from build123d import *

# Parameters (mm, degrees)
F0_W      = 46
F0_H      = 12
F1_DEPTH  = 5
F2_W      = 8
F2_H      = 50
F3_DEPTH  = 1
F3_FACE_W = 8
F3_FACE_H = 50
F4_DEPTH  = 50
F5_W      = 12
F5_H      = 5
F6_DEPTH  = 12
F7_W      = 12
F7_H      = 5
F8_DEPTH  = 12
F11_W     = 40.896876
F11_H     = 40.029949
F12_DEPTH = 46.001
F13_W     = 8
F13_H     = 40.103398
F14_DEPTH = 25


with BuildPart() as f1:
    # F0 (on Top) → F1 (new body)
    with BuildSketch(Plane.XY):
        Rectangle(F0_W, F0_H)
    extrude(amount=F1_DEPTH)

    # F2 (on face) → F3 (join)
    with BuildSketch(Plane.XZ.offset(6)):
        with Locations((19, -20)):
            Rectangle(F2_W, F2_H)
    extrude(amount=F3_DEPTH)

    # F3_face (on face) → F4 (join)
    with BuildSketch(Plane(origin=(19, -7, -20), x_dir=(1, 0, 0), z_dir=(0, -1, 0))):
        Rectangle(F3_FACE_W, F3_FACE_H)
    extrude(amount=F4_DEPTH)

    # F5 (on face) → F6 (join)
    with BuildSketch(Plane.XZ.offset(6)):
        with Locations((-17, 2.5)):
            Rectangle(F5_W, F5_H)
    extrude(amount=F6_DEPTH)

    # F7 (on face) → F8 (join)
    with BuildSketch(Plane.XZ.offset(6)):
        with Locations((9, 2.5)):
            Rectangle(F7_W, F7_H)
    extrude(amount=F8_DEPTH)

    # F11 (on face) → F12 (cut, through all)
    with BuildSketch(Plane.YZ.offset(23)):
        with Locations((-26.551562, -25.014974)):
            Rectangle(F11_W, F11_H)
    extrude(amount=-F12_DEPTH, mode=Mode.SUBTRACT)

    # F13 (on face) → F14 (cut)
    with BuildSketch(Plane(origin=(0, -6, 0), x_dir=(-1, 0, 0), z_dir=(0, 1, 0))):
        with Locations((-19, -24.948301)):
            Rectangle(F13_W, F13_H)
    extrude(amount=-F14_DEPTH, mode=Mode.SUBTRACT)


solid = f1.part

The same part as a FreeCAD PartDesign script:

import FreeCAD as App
import Part
import Sketcher

V = App.Vector
Q = App.Units.Quantity

doc = App.newDocument("Part")
body = doc.addObject("PartDesign::Body", "Body")

# Sketch on XY plane
sketch1 = body.newObject("Sketcher::SketchObject", "Sketch")
sketch1.AttachmentSupport = (doc.getObject("XY_Plane"), [""])
sketch1.MapMode = "FlatFace"
sketch1.addGeometry([
    Part.LineSegment(V(-23, 6, 0), V(-23, -6, 0)),
    Part.LineSegment(V(-23, -6, 0), V(23, -6, 0)),
    Part.LineSegment(V(23, -6, 0), V(23, 6, 0)),
    Part.LineSegment(V(23, 6, 0), V(-23, 6, 0)),
], False)
sketch1.addConstraint([
    Sketcher.Constraint("Coincident", 0, 2, 1, 1),
    Sketcher.Constraint("Coincident", 1, 2, 2, 1),
    Sketcher.Constraint("Coincident", 2, 2, 3, 1),
    Sketcher.Constraint("Coincident", 3, 2, 0, 1),
    Sketcher.Constraint("Vertical", 0),
    Sketcher.Constraint("Horizontal", 1),
    Sketcher.Constraint("Vertical", 2),
    Sketcher.Constraint("Horizontal", 3),
    Sketcher.Constraint("Symmetric", 0, 2, 2, 2, -1, 1),
    Sketcher.Constraint("DistanceX", 1, 1, 1, 2, Q("46 mm")),
    Sketcher.Constraint("DistanceY", 0, 2, 0, 1, Q("12 mm")),
])
pad1 = body.newObject("PartDesign::Pad", "Pad")
pad1.Profile = sketch1
pad1.Length = 5

# Sketch on XZ plane
sketch2 = body.newObject("Sketcher::SketchObject", "Sketch001")
sketch2.AttachmentSupport = (doc.getObject("XZ_Plane"), [""])
sketch2.MapMode = "FlatFace"
sketch2.AttachmentOffset = App.Placement(V(0, 0, 6), App.Rotation())
sketch2.addGeometry([
    Part.LineSegment(V(15, 5, 0), V(15, -45, 0)),
    Part.LineSegment(V(15, -45, 0), V(23, -45, 0)),
    Part.LineSegment(V(23, -45, 0), V(23, 5, 0)),
    Part.LineSegment(V(23, 5, 0), V(15, 5, 0)),
], False)
sketch2.addConstraint([
    Sketcher.Constraint("Coincident", 0, 2, 1, 1),
    Sketcher.Constraint("Coincident", 1, 2, 2, 1),
    Sketcher.Constraint("Coincident", 2, 2, 3, 1),
    Sketcher.Constraint("Coincident", 3, 2, 0, 1),
    Sketcher.Constraint("Vertical", 0),
    Sketcher.Constraint("Horizontal", 1),
    Sketcher.Constraint("Vertical", 2),
    Sketcher.Constraint("Horizontal", 3),
    Sketcher.Constraint("DistanceX", 1, 1, 1, 2, Q("8 mm")),
    Sketcher.Constraint("DistanceY", 0, 2, 0, 1, Q("50 mm")),
    Sketcher.Constraint("DistanceX", -1, 1, 0, 2, Q("15 mm")),
    Sketcher.Constraint("DistanceY", 0, 2, -1, 1, Q("45 mm")),
])
pad2 = body.newObject("PartDesign::Pad", "Pad001")
pad2.Profile = sketch2
pad2.Length = 1

# Sketch on XZ plane
sketch3 = body.newObject("Sketcher::SketchObject", "Sketch002")
sketch3.AttachmentSupport = (doc.getObject("XZ_Plane"), [""])
sketch3.MapMode = "FlatFace"
sketch3.AttachmentOffset = App.Placement(V(0, 0, 7), App.Rotation())
sketch3.addGeometry([
    Part.LineSegment(V(15, 5, 0), V(15, -45, 0)),
    Part.LineSegment(V(15, -45, 0), V(23, -45, 0)),
    Part.LineSegment(V(23, -45, 0), V(23, 5, 0)),
    Part.LineSegment(V(23, 5, 0), V(15, 5, 0)),
], False)
sketch3.addConstraint([
    Sketcher.Constraint("Coincident", 0, 2, 1, 1),
    Sketcher.Constraint("Coincident", 1, 2, 2, 1),
    Sketcher.Constraint("Coincident", 2, 2, 3, 1),
    Sketcher.Constraint("Coincident", 3, 2, 0, 1),
    Sketcher.Constraint("Vertical", 0),
    Sketcher.Constraint("Horizontal", 1),
    Sketcher.Constraint("Vertical", 2),
    Sketcher.Constraint("Horizontal", 3),
    Sketcher.Constraint("DistanceX", 1, 1, 1, 2, Q("8 mm")),
    Sketcher.Constraint("DistanceY", 0, 2, 0, 1, Q("50 mm")),
    Sketcher.Constraint("DistanceX", -1, 1, 0, 2, Q("15 mm")),
    Sketcher.Constraint("DistanceY", 0, 2, -1, 1, Q("45 mm")),
])
pad3 = body.newObject("PartDesign::Pad", "Pad002")
pad3.Profile = sketch3
pad3.Length = 50

# Sketch on XZ plane
sketch4 = body.newObject("Sketcher::SketchObject", "Sketch003")
sketch4.AttachmentSupport = (doc.getObject("XZ_Plane"), [""])
sketch4.MapMode = "FlatFace"
sketch4.AttachmentOffset = App.Placement(V(0, 0, 6), App.Rotation())
sketch4.addGeometry([
    Part.LineSegment(V(-23, 5, 0), V(-23, 0, 0)),
    Part.LineSegment(V(-23, 0, 0), V(-11, 0, 0)),
    Part.LineSegment(V(-11, 0, 0), V(-11, 5, 0)),
    Part.LineSegment(V(-11, 5, 0), V(-23, 5, 0)),
], False)
sketch4.addConstraint([
    Sketcher.Constraint("Coincident", 0, 2, 1, 1),
    Sketcher.Constraint("Coincident", 1, 2, 2, 1),
    Sketcher.Constraint("Coincident", 2, 2, 3, 1),
    Sketcher.Constraint("Coincident", 3, 2, 0, 1),
    Sketcher.Constraint("Vertical", 0),
    Sketcher.Constraint("Horizontal", 1),
    Sketcher.Constraint("Vertical", 2),
    Sketcher.Constraint("Horizontal", 3),
    Sketcher.Constraint("PointOnObject", 0, 2, -1),
    Sketcher.Constraint("DistanceX", 1, 1, 1, 2, Q("12 mm")),
    Sketcher.Constraint("DistanceY", 0, 2, 0, 1, Q("5 mm")),
    Sketcher.Constraint("DistanceX", 0, 2, -1, 1, Q("23 mm")),
])
pad4 = body.newObject("PartDesign::Pad", "Pad003")
pad4.Profile = sketch4
pad4.Length = 12

# Sketch on XZ plane
sketch5 = body.newObject("Sketcher::SketchObject", "Sketch004")
sketch5.AttachmentSupport = (doc.getObject("XZ_Plane"), [""])
sketch5.MapMode = "FlatFace"
sketch5.AttachmentOffset = App.Placement(V(0, 0, 6), App.Rotation())
sketch5.addGeometry([
    Part.LineSegment(V(3, 5, 0), V(3, 0, 0)),
    Part.LineSegment(V(3, 0, 0), V(15, 0, 0)),
    Part.LineSegment(V(15, 0, 0), V(15, 5, 0)),
    Part.LineSegment(V(15, 5, 0), V(3, 5, 0)),
], False)
sketch5.addConstraint([
    Sketcher.Constraint("Coincident", 0, 2, 1, 1),
    Sketcher.Constraint("Coincident", 1, 2, 2, 1),
    Sketcher.Constraint("Coincident", 2, 2, 3, 1),
    Sketcher.Constraint("Coincident", 3, 2, 0, 1),
    Sketcher.Constraint("Vertical", 0),
    Sketcher.Constraint("Horizontal", 1),
    Sketcher.Constraint("Vertical", 2),
    Sketcher.Constraint("Horizontal", 3),
    Sketcher.Constraint("PointOnObject", 0, 2, -1),
    Sketcher.Constraint("DistanceX", 1, 1, 1, 2, Q("12 mm")),
    Sketcher.Constraint("DistanceY", 0, 2, 0, 1, Q("5 mm")),
    Sketcher.Constraint("DistanceX", -1, 1, 0, 2, Q("3 mm")),
])
pad5 = body.newObject("PartDesign::Pad", "Pad004")
pad5.Profile = sketch5
pad5.Length = 12

# Sketch on YZ plane
sketch6 = body.newObject("Sketcher::SketchObject", "Sketch005")
sketch6.AttachmentSupport = (doc.getObject("YZ_Plane"), [""])
sketch6.MapMode = "FlatFace"
sketch6.AttachmentOffset = App.Placement(V(0, 0, 23), App.Rotation())
sketch6.addGeometry([
    Part.LineSegment(V(-47, -5, 0), V(-47, -45, 0)),
    Part.LineSegment(V(-47, -45, 0), V(-6, -45, 0)),
    Part.LineSegment(V(-6, -45, 0), V(-6, -5, 0)),
    Part.LineSegment(V(-6, -5, 0), V(-47, -5, 0)),
], False)
sketch6.addConstraint([
    Sketcher.Constraint("Coincident", 0, 2, 1, 1),
    Sketcher.Constraint("Coincident", 1, 2, 2, 1),
    Sketcher.Constraint("Coincident", 2, 2, 3, 1),
    Sketcher.Constraint("Coincident", 3, 2, 0, 1),
    Sketcher.Constraint("Vertical", 0),
    Sketcher.Constraint("Horizontal", 1),
    Sketcher.Constraint("Vertical", 2),
    Sketcher.Constraint("Horizontal", 3),
    Sketcher.Constraint("DistanceX", 0, 2, -1, 1, Q("47 mm")),
    Sketcher.Constraint("DistanceY", 2, 2, -1, 1, Q("5 mm")),
    Sketcher.Constraint("DistanceY", 0, 2, 0, 1, Q("40.029949 mm")),
    Sketcher.Constraint("DistanceX", 1, 1, 1, 2, Q("40.896876 mm")),
])
pocket1 = body.newObject("PartDesign::Pocket", "Pocket")
pocket1.Profile = sketch6
pocket1.Type = "ThroughAll"

# Sketch on XZ plane
sketch7 = body.newObject("Sketcher::SketchObject", "Sketch006")
sketch7.AttachmentSupport = (doc.getObject("XZ_Plane"), [""])
sketch7.MapMode = "FlatFace"
sketch7.AttachmentOffset = App.Placement(V(0, 0, 6), App.Rotation())
sketch7.addGeometry([
    Part.LineSegment(V(23, -5, 0), V(23, -45, 0)),
    Part.LineSegment(V(23, -45, 0), V(15, -45, 0)),
    Part.LineSegment(V(15, -45, 0), V(15, -5, 0)),
    Part.LineSegment(V(15, -5, 0), V(23, -5, 0)),
], False)
sketch7.addConstraint([
    Sketcher.Constraint("Coincident", 0, 2, 1, 1),
    Sketcher.Constraint("Coincident", 1, 2, 2, 1),
    Sketcher.Constraint("Coincident", 2, 2, 3, 1),
    Sketcher.Constraint("Coincident", 3, 2, 0, 1),
    Sketcher.Constraint("Vertical", 0),
    Sketcher.Constraint("Horizontal", 1),
    Sketcher.Constraint("Vertical", 2),
    Sketcher.Constraint("Horizontal", 3),
    Sketcher.Constraint("DistanceX", 1, 2, 1, 1, Q("8 mm")),
    Sketcher.Constraint("DistanceX", -1, 1, 0, 2, Q("23 mm")),
    Sketcher.Constraint("DistanceY", 0, 2, -1, 1, Q("45 mm")),
    Sketcher.Constraint("DistanceY", 2, 2, -1, 1, Q("4.896602 mm")),
])
pocket2 = body.newObject("PartDesign::Pocket", "Pocket001")
pocket2.Profile = sketch7
pocket2.Length = 25
pocket2.Reversed = True

doc.recompute()
